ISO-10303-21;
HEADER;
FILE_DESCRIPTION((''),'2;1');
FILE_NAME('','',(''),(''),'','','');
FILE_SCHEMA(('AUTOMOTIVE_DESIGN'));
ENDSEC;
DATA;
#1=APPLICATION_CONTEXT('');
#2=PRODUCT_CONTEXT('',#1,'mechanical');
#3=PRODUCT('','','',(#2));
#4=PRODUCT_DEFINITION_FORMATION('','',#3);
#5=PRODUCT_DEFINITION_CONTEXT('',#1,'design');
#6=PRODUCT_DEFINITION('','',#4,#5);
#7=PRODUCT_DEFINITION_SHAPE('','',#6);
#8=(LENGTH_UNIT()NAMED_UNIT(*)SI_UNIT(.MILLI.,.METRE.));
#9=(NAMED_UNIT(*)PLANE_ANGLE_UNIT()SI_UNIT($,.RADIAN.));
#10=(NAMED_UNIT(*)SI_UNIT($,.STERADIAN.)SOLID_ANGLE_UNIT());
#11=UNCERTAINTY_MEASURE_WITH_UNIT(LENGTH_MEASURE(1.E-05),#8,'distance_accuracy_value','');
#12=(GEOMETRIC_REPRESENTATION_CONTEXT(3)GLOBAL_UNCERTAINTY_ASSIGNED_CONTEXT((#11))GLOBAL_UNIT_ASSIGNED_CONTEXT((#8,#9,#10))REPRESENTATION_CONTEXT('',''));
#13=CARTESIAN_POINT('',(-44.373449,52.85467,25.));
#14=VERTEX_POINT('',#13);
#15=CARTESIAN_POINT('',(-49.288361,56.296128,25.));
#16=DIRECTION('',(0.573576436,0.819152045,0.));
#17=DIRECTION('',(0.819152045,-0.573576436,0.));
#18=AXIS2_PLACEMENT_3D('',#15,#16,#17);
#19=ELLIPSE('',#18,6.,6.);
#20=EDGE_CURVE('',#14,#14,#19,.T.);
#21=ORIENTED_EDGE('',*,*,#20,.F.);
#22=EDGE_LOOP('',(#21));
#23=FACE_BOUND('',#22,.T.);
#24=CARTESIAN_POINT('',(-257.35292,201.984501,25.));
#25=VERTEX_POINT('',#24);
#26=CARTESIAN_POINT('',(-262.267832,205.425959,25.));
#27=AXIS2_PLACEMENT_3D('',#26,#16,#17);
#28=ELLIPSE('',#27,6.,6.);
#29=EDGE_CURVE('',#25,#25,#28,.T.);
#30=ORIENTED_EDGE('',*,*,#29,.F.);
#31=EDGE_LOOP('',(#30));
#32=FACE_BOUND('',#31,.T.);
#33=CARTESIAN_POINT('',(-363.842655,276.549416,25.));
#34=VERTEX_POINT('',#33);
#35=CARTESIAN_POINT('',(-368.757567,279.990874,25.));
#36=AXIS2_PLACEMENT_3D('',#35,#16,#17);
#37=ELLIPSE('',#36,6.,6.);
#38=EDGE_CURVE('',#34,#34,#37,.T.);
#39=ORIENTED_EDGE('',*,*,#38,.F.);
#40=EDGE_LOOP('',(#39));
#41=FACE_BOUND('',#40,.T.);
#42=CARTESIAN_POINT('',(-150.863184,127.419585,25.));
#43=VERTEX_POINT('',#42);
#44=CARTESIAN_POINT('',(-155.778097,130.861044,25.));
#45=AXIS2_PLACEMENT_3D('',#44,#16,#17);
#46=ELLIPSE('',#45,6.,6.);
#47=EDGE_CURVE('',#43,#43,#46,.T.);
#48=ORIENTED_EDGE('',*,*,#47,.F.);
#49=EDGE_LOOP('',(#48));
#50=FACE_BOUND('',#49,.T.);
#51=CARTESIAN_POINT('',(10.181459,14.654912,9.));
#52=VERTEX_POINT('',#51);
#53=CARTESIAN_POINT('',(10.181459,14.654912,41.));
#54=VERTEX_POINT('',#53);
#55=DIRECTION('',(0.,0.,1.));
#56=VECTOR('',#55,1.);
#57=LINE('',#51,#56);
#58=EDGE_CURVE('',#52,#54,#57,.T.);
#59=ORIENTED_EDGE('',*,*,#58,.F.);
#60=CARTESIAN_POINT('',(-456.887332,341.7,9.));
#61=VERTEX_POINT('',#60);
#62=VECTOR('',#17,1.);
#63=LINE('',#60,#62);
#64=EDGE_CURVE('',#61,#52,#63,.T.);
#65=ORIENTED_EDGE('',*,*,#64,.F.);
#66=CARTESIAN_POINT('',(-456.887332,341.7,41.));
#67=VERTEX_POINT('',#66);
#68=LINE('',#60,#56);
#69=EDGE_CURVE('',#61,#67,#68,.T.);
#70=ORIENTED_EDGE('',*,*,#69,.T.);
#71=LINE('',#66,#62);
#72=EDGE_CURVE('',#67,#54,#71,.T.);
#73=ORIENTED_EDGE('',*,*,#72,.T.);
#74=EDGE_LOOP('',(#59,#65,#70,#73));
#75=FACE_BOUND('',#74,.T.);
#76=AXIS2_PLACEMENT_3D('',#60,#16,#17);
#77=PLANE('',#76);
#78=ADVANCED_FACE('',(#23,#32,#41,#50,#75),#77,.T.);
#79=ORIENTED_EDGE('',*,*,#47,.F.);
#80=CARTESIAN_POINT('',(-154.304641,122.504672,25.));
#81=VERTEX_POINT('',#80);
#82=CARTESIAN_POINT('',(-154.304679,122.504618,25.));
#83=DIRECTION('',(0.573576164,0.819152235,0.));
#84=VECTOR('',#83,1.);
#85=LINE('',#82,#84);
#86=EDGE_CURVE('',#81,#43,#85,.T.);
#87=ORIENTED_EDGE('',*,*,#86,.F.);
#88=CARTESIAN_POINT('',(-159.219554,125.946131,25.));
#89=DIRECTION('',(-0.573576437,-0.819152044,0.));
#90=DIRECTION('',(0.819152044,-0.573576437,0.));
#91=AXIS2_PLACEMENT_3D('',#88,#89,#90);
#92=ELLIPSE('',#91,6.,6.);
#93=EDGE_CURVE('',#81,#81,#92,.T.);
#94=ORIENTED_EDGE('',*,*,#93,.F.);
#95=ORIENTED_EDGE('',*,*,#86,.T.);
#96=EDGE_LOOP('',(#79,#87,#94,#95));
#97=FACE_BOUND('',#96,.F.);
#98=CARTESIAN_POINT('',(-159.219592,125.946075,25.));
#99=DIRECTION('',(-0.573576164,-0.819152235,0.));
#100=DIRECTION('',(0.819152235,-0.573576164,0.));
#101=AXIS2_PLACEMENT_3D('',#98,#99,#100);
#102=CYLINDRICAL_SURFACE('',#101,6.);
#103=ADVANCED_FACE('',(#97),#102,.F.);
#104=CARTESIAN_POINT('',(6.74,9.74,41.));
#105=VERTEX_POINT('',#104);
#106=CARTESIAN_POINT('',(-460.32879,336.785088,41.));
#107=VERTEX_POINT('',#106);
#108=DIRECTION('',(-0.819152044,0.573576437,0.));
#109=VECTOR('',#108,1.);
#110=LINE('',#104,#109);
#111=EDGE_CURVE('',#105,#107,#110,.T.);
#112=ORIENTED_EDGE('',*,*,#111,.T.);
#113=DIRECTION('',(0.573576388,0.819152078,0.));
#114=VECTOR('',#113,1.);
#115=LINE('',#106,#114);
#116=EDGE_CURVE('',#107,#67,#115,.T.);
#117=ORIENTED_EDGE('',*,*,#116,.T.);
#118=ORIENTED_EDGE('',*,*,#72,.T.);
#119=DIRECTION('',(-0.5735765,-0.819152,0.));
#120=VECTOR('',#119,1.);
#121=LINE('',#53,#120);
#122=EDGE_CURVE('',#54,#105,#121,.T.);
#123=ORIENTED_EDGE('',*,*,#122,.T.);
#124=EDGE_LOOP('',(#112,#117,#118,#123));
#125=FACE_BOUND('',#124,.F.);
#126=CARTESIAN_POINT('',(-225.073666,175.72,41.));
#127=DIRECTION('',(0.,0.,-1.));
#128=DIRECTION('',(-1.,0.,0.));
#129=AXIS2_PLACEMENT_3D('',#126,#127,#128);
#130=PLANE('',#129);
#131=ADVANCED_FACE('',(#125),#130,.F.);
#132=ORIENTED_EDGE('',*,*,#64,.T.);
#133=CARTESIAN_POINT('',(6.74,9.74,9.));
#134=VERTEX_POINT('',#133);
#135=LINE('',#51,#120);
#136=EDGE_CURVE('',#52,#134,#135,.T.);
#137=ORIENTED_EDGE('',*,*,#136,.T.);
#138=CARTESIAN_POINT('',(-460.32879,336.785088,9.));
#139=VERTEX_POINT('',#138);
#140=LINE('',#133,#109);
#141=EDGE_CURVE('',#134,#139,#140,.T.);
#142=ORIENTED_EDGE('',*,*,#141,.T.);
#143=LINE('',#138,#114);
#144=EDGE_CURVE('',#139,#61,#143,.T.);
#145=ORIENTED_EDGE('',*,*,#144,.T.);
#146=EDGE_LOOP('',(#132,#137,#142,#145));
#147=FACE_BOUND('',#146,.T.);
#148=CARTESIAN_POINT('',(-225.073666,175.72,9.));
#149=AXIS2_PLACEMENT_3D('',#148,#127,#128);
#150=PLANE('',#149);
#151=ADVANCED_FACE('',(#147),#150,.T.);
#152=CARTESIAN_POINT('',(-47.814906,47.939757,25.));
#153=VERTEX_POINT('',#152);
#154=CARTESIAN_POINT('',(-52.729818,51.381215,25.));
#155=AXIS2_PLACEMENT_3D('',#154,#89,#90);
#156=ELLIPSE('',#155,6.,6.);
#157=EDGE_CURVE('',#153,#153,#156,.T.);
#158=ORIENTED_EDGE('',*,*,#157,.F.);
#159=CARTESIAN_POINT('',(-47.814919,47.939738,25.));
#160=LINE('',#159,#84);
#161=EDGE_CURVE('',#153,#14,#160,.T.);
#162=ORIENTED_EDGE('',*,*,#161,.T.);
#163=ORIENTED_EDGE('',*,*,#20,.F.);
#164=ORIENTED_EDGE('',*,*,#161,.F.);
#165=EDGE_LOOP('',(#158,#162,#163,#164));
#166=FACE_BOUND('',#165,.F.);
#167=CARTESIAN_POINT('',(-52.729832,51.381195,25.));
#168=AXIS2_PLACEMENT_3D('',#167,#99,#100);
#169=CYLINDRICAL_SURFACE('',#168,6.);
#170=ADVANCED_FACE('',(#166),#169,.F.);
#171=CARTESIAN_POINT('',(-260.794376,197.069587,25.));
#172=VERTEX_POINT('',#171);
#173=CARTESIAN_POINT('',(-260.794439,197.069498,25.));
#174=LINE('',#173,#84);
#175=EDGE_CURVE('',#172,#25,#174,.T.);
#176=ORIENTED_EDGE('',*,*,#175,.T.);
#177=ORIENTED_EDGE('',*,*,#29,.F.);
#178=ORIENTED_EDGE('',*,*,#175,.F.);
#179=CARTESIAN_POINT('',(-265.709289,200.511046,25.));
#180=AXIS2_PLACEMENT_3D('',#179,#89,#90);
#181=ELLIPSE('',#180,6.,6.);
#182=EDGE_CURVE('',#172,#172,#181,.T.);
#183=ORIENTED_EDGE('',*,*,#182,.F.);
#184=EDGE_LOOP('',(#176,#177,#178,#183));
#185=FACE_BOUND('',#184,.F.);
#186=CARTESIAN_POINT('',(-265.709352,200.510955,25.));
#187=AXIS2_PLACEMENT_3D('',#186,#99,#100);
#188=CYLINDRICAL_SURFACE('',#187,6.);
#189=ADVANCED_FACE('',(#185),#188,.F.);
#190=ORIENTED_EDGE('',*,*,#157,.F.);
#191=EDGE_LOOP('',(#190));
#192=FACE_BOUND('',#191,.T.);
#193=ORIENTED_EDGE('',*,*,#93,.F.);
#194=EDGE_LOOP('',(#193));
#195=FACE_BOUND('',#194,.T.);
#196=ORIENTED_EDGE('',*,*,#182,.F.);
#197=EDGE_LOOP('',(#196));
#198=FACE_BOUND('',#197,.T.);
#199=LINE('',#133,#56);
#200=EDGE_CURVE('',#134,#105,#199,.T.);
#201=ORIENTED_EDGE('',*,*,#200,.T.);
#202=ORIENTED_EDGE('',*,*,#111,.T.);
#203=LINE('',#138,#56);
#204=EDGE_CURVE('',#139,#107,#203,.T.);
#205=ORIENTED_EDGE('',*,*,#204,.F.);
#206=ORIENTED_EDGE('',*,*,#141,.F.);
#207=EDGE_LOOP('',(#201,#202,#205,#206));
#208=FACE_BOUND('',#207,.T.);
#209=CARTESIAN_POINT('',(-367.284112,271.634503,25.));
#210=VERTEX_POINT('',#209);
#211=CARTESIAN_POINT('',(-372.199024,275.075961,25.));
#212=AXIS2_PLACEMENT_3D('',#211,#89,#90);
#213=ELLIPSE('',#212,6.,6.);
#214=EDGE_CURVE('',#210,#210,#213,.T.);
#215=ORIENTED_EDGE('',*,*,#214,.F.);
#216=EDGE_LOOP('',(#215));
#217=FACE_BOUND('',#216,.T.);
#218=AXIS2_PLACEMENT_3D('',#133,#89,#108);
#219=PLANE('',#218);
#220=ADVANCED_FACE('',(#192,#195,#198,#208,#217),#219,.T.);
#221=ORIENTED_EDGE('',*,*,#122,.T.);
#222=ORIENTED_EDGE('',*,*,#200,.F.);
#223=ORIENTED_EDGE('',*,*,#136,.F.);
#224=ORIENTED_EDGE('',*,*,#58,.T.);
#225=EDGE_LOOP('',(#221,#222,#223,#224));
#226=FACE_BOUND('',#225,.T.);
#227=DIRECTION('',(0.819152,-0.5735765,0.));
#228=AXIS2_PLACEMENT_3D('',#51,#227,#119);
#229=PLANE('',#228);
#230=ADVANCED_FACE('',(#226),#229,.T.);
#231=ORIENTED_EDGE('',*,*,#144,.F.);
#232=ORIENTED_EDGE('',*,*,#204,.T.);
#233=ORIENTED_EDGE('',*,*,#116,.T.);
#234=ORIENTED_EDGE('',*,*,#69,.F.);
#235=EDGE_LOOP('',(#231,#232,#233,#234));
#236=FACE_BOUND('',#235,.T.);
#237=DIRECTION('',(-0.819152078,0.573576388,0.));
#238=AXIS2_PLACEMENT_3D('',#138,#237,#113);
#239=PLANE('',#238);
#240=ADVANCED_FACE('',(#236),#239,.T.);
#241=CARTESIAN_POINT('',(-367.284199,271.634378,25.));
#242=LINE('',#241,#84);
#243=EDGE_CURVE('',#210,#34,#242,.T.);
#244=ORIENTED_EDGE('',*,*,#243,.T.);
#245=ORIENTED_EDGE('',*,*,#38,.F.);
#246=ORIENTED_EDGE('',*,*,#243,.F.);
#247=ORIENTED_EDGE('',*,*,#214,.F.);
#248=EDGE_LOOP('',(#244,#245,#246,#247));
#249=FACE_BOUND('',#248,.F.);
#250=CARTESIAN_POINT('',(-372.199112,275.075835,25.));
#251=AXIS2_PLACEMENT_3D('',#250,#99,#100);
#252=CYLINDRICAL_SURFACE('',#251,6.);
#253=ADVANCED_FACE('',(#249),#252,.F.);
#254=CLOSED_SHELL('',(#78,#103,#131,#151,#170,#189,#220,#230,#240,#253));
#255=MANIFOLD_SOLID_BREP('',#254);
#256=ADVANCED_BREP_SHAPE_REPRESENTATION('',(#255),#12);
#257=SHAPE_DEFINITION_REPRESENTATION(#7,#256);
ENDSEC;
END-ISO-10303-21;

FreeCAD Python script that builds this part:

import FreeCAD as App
import Part
import Sketcher

V = App.Vector
Q = App.Units.Quantity


def add_polygon(sketch, points):
    """Adds a closed chain of lines whose ends are joined by coincident constraints."""
    first, n = sketch.GeometryCount, len(points)
    for a, b in zip(points, points[1:] + points[:1]):
        sketch.addGeometry(Part.LineSegment(App.Vector(*a, 0), App.Vector(*b, 0)), False)
    for i in range(n):
        sketch.addConstraint(Sketcher.Constraint("Coincident", first + i, 2, first + (i + 1) % n, 1))

doc = App.newDocument("Part")
body = doc.addObject("PartDesign::Body", "Body")

sketch1 = body.newObject("Sketcher::SketchObject", "Sketch")
sketch1.AttachmentSupport = (doc.getObject("XY_Plane"), [""])
sketch1.MapMode = "FlatFace"
add_polygon(sketch1, [(10, 15), (-457, 342), (-460, 337), (7, 10)])
sketch1.addConstraint(Sketcher.Constraint("Perpendicular", 0, 1))
sketch1.addConstraint(Sketcher.Constraint("Perpendicular", 1, 2))
sketch1.addConstraint(Sketcher.Constraint("Perpendicular", 2, 3))
sketch1.addConstraint(Sketcher.Constraint("Angle", 0, Q("145 deg")))
sketch1.addConstraint(Sketcher.Constraint("Distance", 1, 5.999999))
sketch1.addConstraint(Sketcher.Constraint("DistanceY", -1, 1, 0, 2, 341.7))
sketch1.addConstraint(Sketcher.Constraint("DistanceX", -1, 1, 2, 2, 6.74))
sketch1.addConstraint(Sketcher.Constraint("DistanceY", -1, 1, 2, 2, 9.74))
pad1 = body.newObject("PartDesign::Pad", "Pad")
pad1.Profile = sketch1
pad1.Length = 32

sketch2 = body.newObject("Sketcher::SketchObject", "Sketch001")
sketch2.Placement = App.Placement(V(6.793695, 9.702402, 0), App.Rotation(V(0.819152235, -0.573576164, 0), V(0, 0, 1), V(-0.573576164, -0.819152235, 0), "ZXY"))
sketch2.addGeometry(Part.Circle(V(-463, 16, 0), V(0, 0, 1), 6), False)
sketch2.addConstraint(Sketcher.Constraint("Diameter", 0, 12.0))
sketch2.addConstraint(Sketcher.Constraint("DistanceY", -1, 1, 0, 3, 16.0))
sketch2.addConstraint(Sketcher.Constraint("DistanceX", 0, 3, -1, 1, 462.664681))
pocket1 = body.newObject("PartDesign::Pocket", "Pocket")
pocket1.Profile = sketch2
pocket1.Type = "ThroughAll"
doc.recompute()

datumline = body.newObject("PartDesign::Line", "DatumLine")
datumline.Placement = App.Placement(V(0, 0, 0), App.Rotation(V(0, 0, 1), V(0.819152235, -0.573576164, 0)))
linearpattern = body.newObject("PartDesign::LinearPattern", "LinearPattern")
linearpattern.Originals = [pocket1]
linearpattern.Direction = (datumline, [""])
linearpattern.Mode = "offset"
linearpattern.Offset = 129.999963
linearpattern.Occurrences = 4
body.Tip = linearpattern
body2 = doc.addObject("PartDesign::Body", "Body001")
doc.recompute()

body.Placement = App.Placement(V(0, 0, 9), App.Rotation(V(0, 0, 1), 0))
boolean = body2.newObject("PartDesign::Boolean", "Boolean")
boolean.Type = "Fuse"
boolean.addObjects([body])

doc.recompute()
